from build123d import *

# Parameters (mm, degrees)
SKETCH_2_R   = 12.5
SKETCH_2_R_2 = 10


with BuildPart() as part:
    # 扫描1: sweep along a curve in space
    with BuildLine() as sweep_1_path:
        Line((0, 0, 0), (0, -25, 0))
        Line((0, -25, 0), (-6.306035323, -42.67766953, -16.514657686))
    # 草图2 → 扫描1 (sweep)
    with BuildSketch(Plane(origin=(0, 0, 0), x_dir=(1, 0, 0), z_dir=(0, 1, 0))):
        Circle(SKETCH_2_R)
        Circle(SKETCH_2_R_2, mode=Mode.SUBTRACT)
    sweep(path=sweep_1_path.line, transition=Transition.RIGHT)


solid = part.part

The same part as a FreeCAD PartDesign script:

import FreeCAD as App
import Part
import Sketcher
from FreeCAD import Vector
Q = App.Units.Quantity

doc = App.newDocument("Part")
body = doc.addObject("PartDesign::Body", "Body")

# Sketch on XZ plane
sketch1 = body.newObject("Sketcher::SketchObject", "Sketch")
sketch1.AttachmentSupport = (doc.getObject("XZ_Plane"), [""])
sketch1.MapMode = "FlatFace"
sketch1.addGeometry([
    Part.Circle(Vector(0, 0, 0), Vector(0, 0, 1), 12.5),
    Part.Circle(Vector(0, 0, 0), Vector(0, 0, 1), 10),
], False)
sketch1.addConstraint([
    Sketcher.Constraint("Coincident", 0, 3, -1, 1),
    Sketcher.Constraint("Coincident", 1, 3, -1, 1),
    Sketcher.Constraint("Diameter", 0, 25.0),
    Sketcher.Constraint("Diameter", 1, 20.0),
])

# Sketch on an angled plane
sketch2 = body.newObject("Sketcher::SketchObject", "Sketch001")
sketch2.Placement = App.Placement(Vector(0, 0, 0), App.Rotation(Vector(-0.356723227, 0, -0.934210115), Vector(0, 1, 0), Vector(0.934210115, 0, -0.356723227), "ZXY"))
sketch2.addGeometry([
    Part.LineSegment(Vector(0, 0, 0), Vector(0, -25, 0)),
    Part.LineSegment(Vector(0, -25, 0), Vector(17.67767, -42.67767, 0)),
], False)
sketch2.addConstraint([
    Sketcher.Constraint("Coincident", 0, 2, 1, 1),
    Sketcher.Constraint("Vertical", 0),
    Sketcher.Constraint("Coincident", 0, 1, -1, 1),
    Sketcher.Constraint("DistanceY", 0, 2, 0, 1, 25.0),
    Sketcher.Constraint("Angle", 1, Q("-45 deg")),
    Sketcher.Constraint("Distance", 1, 25.0),
])
doc.recompute()

additivepipe = body.newObject("PartDesign::AdditivePipe", "AdditivePipe")
additivepipe.Profile = sketch1
additivepipe.Spine = (sketch2, ["Edge1", "Edge2"])
additivepipe.Transition = "Right corner"

doc.recompute()
